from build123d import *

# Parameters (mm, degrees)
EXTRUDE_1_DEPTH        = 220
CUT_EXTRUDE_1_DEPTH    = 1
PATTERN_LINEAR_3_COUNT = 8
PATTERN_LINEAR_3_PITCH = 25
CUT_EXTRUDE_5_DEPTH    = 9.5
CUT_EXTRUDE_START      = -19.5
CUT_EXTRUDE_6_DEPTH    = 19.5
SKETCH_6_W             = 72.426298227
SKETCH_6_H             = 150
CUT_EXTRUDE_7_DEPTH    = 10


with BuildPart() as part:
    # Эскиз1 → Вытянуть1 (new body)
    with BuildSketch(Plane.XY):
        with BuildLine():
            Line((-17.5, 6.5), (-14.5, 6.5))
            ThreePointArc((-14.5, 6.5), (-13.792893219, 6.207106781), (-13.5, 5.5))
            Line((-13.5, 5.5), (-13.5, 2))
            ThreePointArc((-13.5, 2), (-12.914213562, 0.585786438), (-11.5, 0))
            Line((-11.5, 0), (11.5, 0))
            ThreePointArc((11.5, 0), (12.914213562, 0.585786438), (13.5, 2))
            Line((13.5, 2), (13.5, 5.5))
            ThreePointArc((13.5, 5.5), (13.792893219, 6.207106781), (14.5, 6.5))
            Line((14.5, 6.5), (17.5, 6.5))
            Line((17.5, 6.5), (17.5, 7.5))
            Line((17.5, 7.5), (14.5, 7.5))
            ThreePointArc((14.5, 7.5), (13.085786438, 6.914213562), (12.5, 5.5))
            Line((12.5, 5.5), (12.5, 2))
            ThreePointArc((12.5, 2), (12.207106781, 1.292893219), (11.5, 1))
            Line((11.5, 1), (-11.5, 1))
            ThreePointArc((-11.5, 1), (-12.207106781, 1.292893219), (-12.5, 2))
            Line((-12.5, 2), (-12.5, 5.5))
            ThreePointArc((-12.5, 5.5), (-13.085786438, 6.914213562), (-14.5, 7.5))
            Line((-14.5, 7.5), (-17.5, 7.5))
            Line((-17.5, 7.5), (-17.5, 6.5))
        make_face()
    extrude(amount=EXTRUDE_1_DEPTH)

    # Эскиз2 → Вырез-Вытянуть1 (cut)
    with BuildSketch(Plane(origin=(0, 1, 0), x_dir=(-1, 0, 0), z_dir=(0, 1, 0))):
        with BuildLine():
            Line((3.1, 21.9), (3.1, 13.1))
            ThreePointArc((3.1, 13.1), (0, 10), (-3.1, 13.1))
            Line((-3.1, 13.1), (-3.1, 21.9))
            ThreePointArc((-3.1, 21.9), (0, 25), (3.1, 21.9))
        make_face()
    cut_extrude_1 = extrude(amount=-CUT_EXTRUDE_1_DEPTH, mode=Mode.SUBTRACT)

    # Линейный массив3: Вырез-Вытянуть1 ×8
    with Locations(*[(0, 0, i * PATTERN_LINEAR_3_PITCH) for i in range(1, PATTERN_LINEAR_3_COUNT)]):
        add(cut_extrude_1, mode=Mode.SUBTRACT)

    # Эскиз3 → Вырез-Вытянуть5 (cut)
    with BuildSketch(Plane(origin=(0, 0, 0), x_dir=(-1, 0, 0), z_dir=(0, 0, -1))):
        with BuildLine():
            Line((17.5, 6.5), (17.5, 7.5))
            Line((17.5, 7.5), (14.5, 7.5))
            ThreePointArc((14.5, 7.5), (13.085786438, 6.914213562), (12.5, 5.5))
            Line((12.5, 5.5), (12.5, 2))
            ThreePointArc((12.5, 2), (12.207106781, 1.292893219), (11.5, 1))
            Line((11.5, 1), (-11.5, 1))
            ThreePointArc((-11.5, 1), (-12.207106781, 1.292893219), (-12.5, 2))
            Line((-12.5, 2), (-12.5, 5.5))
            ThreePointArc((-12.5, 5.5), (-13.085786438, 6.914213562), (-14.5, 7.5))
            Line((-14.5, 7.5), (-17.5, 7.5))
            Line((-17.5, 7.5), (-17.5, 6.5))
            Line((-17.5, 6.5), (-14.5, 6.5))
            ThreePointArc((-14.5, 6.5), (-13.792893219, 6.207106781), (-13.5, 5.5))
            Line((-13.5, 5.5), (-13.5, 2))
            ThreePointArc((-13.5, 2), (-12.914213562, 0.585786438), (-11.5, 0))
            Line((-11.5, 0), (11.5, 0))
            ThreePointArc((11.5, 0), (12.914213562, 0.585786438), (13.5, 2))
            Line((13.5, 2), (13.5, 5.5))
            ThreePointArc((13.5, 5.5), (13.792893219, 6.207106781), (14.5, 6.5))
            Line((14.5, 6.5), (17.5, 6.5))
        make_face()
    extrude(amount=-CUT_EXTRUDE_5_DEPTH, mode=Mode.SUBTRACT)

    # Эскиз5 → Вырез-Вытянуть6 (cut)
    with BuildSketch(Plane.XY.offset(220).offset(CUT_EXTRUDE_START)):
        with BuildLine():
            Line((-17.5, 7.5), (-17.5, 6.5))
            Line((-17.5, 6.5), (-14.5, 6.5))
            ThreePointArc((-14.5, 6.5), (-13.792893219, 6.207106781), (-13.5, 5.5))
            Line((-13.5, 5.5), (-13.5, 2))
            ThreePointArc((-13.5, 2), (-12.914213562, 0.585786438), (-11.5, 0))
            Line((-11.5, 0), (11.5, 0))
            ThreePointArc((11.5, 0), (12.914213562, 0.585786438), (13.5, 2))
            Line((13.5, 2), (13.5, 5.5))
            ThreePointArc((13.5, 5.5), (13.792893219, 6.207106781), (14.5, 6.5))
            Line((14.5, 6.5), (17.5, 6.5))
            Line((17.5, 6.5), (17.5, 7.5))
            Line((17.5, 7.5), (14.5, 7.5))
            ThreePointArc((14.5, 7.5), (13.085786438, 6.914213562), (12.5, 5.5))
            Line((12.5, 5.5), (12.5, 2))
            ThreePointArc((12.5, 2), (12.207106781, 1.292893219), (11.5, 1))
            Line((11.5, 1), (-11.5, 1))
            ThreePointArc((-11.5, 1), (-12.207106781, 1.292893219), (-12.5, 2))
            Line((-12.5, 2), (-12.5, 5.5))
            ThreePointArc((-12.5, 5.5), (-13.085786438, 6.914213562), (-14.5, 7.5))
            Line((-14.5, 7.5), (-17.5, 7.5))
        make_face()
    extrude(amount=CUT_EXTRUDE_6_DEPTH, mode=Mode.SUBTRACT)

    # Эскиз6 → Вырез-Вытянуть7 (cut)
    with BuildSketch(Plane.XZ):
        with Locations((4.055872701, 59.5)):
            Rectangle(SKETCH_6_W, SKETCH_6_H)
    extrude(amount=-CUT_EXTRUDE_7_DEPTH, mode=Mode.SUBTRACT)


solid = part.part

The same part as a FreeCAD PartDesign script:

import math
import FreeCAD as App
import Part
import Sketcher

V = App.Vector

doc = App.newDocument("Part")
params = doc.addObject("Spreadsheet::Sheet", "Params")
for row, (alias, value) in enumerate([
    ("sketch1_radius", "1 mm"),
    ("sketch1_radius2", "2 mm"),
    ("sketch1_width", "3 mm"),
    ("sketch1_width2", "23 mm"),
    ("sketch1_height", "3.5 mm"),
    ("pad1_length", "220 mm"),
    ("sketch2_radius", "3.1 mm"),
    ("sketch2_height", "8.8 mm"),
    ("pocket1_length", "1 mm"),
    ("linearpattern_pitch", "25 mm"),
    ("sketch3_radius", "2 mm"),
    ("sketch3_radius2", "1 mm"),
    ("sketch3_width", "3 mm"),
    ("sketch3_width2", "23 mm"),
    ("sketch3_height", "3.5 mm"),
    ("pocket2_length", "9.5 mm"),
    ("sketch4_radius", "1 mm"),
    ("sketch4_radius2", "2 mm"),
    ("sketch4_width", "3 mm"),
    ("sketch4_width2", "23 mm"),
    ("sketch4_height", "3.5 mm"),
    ("pocket3_length", "19.5 mm"),
    ("sketch5_height", "150 mm"),
    ("pocket4_length", "10 mm"),
], start=1):
    params.set(f"A{row}", alias)
    params.set(f"B{row}", "=" + value)
    params.setAlias(f"B{row}", alias)

body = doc.addObject("PartDesign::Body", "Body")

sketch1 = doc.addObject("Sketcher::SketchObject", "Sketch")
body.addObject(sketch1)
sketch1.AttachmentSupport = (doc.XY_Plane, [""])
sketch1.MapMode = "FlatFace"
sketch1.addGeometry(Part.LineSegment(V(-17.5, 6.5, 0), V(-14.5, 6.5, 0)), False)
sketch1.addGeometry(Part.ArcOfCircle(Part.Circle(V(-14.5, 5.5, 0), V(0, 0, 1), 1), math.radians(0), math.radians(90)), False)
sketch1.addGeometry(Part.LineSegment(V(-13.5, 5.5, 0), V(-13.5, 2, 0)), False)
sketch1.addGeometry(Part.ArcOfCircle(Part.Circle(V(-11.5, 2, 0), V(0, 0, 1), 2), math.radians(-180), math.radians(-90)), False)
sketch1.addGeometry(Part.LineSegment(V(-11.5, 0, 0), V(11.5, 0, 0)), False)
sketch1.addGeometry(Part.ArcOfCircle(Part.Circle(V(11.5, 2, 0), V(0, 0, 1), 2), math.radians(-90), math.radians(0)), False)
sketch1.addGeometry(Part.LineSegment(V(13.5, 2, 0), V(13.5, 5.5, 0)), False)
sketch1.addGeometry(Part.ArcOfCircle(Part.Circle(V(14.5, 5.5, 0), V(0, 0, 1), 1), math.radians(90), math.radians(180)), False)
sketch1.addGeometry(Part.LineSegment(V(14.5, 6.5, 0), V(17.5, 6.5, 0)), False)
sketch1.addGeometry(Part.LineSegment(V(17.5, 6.5, 0), V(17.5, 7.5, 0)), False)
sketch1.addGeometry(Part.LineSegment(V(17.5, 7.5, 0), V(14.5, 7.5, 0)), False)
sketch1.addGeometry(Part.ArcOfCircle(Part.Circle(V(14.5, 5.5, 0), V(0, 0, 1), 2), math.radians(90), math.radians(180)), False)
sketch1.addGeometry(Part.LineSegment(V(12.5, 5.5, 0), V(12.5, 2, 0)), False)
sketch1.addGeometry(Part.ArcOfCircle(Part.Circle(V(11.5, 2, 0), V(0, 0, 1), 1), math.radians(-90), math.radians(0)), False)
sketch1.addGeometry(Part.LineSegment(V(11.5, 1, 0), V(-11.5, 1, 0)), False)
sketch1.addGeometry(Part.ArcOfCircle(Part.Circle(V(-11.5, 2, 0), V(0, 0, 1), 1), math.radians(-180), math.radians(-90)), False)
sketch1.addGeometry(Part.LineSegment(V(-12.5, 2, 0), V(-12.5, 5.5, 0)), False)
sketch1.addGeometry(Part.ArcOfCircle(Part.Circle(V(-14.5, 5.5, 0), V(0, 0, 1), 2), math.radians(0), math.radians(90)), False)
sketch1.addGeometry(Part.LineSegment(V(-14.5, 7.5, 0), V(-17.5, 7.5, 0)), False)
sketch1.addGeometry(Part.LineSegment(V(-17.5, 7.5, 0), V(-17.5, 6.5, 0)), False)
sketch1.addConstraint(Sketcher.Constraint("Tangent", 0, 2, 1, 2))
sketch1.addConstraint(Sketcher.Constraint("Tangent", 1, 1, 2, 1))
sketch1.addConstraint(Sketcher.Constraint("Tangent", 2, 2, 3, 1))
sketch1.addConstraint(Sketcher.Constraint("Tangent", 3, 2, 4, 1))
sketch1.addConstraint(Sketcher.Constraint("Tangent", 4, 2, 5, 1))
sketch1.addConstraint(Sketcher.Constraint("Tangent", 5, 2, 6, 1))
sketch1.addConstraint(Sketcher.Constraint("Tangent", 6, 2, 7, 2))
sketch1.addConstraint(Sketcher.Constraint("Tangent", 7, 1, 8, 1))
sketch1.addConstraint(Sketcher.Constraint("Coincident", 8, 2, 9, 1))
sketch1.addConstraint(Sketcher.Constraint("Coincident", 9, 2, 10, 1))
sketch1.addConstraint(Sketcher.Constraint("Tangent", 10, 2, 11, 1))
sketch1.addConstraint(Sketcher.Constraint("Tangent", 11, 2, 12, 1))
sketch1.addConstraint(Sketcher.Constraint("Tangent", 12, 2, 13, 2))
sketch1.addConstraint(Sketcher.Constraint("Tangent", 13, 1, 14, 1))
sketch1.addConstraint(Sketcher.Constraint("Tangent", 14, 2, 15, 2))
sketch1.addConstraint(Sketcher.Constraint("Tangent", 15, 1, 16, 1))
sketch1.addConstraint(Sketcher.Constraint("Tangent", 16, 2, 17, 1))
sketch1.addConstraint(Sketcher.Constraint("Tangent", 17, 2, 18, 1))
sketch1.addConstraint(Sketcher.Constraint("Coincident", 18, 2, 19, 1))
sketch1.addConstraint(Sketcher.Constraint("Coincident", 19, 2, 0, 1))
sketch1.addConstraint(Sketcher.Constraint("Horizontal", 0))
sketch1.addConstraint(Sketcher.Constraint("Vertical", 2))
sketch1.addConstraint(Sketcher.Constraint("Horizontal", 4))
sketch1.addConstraint(Sketcher.Constraint("Vertical", 6))
sketch1.addConstraint(Sketcher.Constraint("Horizontal", 8))
sketch1.addConstraint(Sketcher.Constraint("Vertical", 9))
sketch1.addConstraint(Sketcher.Constraint("Horizontal", 10))
sketch1.addConstraint(Sketcher.Constraint("Vertical", 12))
sketch1.addConstraint(Sketcher.Constraint("Horizontal", 14))
sketch1.addConstraint(Sketcher.Constraint("Vertical", 16))
sketch1.addConstraint(Sketcher.Constraint("Horizontal", 18))
sketch1.addConstraint(Sketcher.Constraint("Vertical", 19))
sketch1.addConstraint(Sketcher.Constraint("Coincident", 11, 3, 7, 3))
sketch1.addConstraint(Sketcher.Constraint("Coincident", 13, 3, 5, 3))
sketch1.addConstraint(Sketcher.Constraint("Coincident", 15, 3, 3, 3))
sketch1.addConstraint(Sketcher.Constraint("Coincident", 17, 3, 1, 3))
sketch1.addConstraint(Sketcher.Constraint("Equal", 3, 5))
sketch1.addConstraint(Sketcher.Constraint("Equal", 1, 7))
sketch1.addConstraint(Sketcher.Constraint("Equal", 5, 11))
sketch1.addConstraint(Sketcher.Constraint("Symmetric", 3, 2, 4, 2, -1, 1))
sketch1.addConstraint(Sketcher.Constraint("Symmetric", 9, 2, 18, 2, -2))
sketch1.addConstraint(Sketcher.Constraint("Radius", 1, 1.0))
sketch1.addConstraint(Sketcher.Constraint("Radius", 3, 2.0))
sketch1.addConstraint(Sketcher.Constraint("DistanceX", 0, 1, 0, 2, 3.0))
sketch1.addConstraint(Sketcher.Constraint("DistanceX", 4, 1, 4, 2, 23.0))
sketch1.addConstraint(Sketcher.Constraint("DistanceY", 2, 2, 2, 1, 3.5))
sketch1.setExpression("Constraints[41]", "Params.sketch1_radius")
sketch1.setExpression("Constraints[42]", "Params.sketch1_radius2")
sketch1.setExpression("Constraints[43]", "Params.sketch1_width")
sketch1.setExpression("Constraints[44]", "Params.sketch1_width2")
sketch1.setExpression("Constraints[45]", "Params.sketch1_height")
pad1 = doc.addObject("PartDesign::Pad", "Pad")
body.addObject(pad1)
pad1.Profile = sketch1
pad1.setExpression("Length", "Params.pad1_length")

sketch2 = doc.addObject("Sketcher::SketchObject", "Sketch001")
body.addObject(sketch2)
sketch2.AttachmentSupport = (doc.XZ_Plane, [""])
sketch2.MapMode = "FlatFace"
sketch2.AttachmentOffset = App.Placement(V(0, 0, -1), App.Rotation())
sketch2.addGeometry(Part.LineSegment(V(-3.1, 13.1, 0), V(-3.1, 21.9, 0)), False)
sketch2.addGeometry(Part.ArcOfCircle(Part.Circle(V(0, 21.9, 0), V(0, 0, 1), 3.1), math.radians(0), math.radians(180)), False)
sketch2.addGeometry(Part.LineSegment(V(3.1, 21.9, 0), V(3.1, 13.1, 0)), False)
sketch2.addGeometry(Part.ArcOfCircle(Part.Circle(V(0, 13.1, 0), V(0, 0, 1), 3.1), math.radians(180), math.radians(360)), False)
sketch2.addConstraint(Sketcher.Constraint("Tangent", 0, 2, 1, 2))
sketch2.addConstraint(Sketcher.Constraint("Tangent", 1, 1, 2, 1))
sketch2.addConstraint(Sketcher.Constraint("Tangent", 2, 2, 3, 2))
sketch2.addConstraint(Sketcher.Constraint("Tangent", 3, 1, 0, 1))
sketch2.addConstraint(Sketcher.Constraint("Vertical", 0))
sketch2.addConstraint(Sketcher.Constraint("Vertical", 2))
sketch2.addConstraint(Sketcher.Constraint("PointOnObject", 1, 3, -2))
sketch2.addConstraint(Sketcher.Constraint("Radius", 1, 3.1))
sketch2.addConstraint(Sketcher.Constraint("DistanceY", 0, 1, 0, 2, 8.8))
sketch2.addConstraint(Sketcher.Constraint("DistanceY", -1, 1, 1, 3, 21.9))
sketch2.setExpression("Constraints[7]", "Params.sketch2_radius")
sketch2.setExpression("Constraints[8]", "Params.sketch2_height")
pocket1 = doc.addObject("PartDesign::Pocket", "Pocket")
body.addObject(pocket1)
pocket1.Profile = sketch2
pocket1.setExpression("Length", "Params.pocket1_length")
pocket1.Reversed = True
doc.recompute()

linearpattern = doc.addObject("PartDesign::LinearPattern", "LinearPattern")
body.addObject(linearpattern)
linearpattern.Originals = [pocket1]
linearpattern.Direction = (doc.Z_Axis, [""])
linearpattern.Mode = "offset"
linearpattern.setExpression("Offset", "Params.linearpattern_pitch")
linearpattern.Occurrences = 8
body.Tip = linearpattern

sketch3 = doc.addObject("Sketcher::SketchObject", "Sketch002")
body.addObject(sketch3)
sketch3.AttachmentSupport = (doc.XY_Plane, [""])
sketch3.MapMode = "FlatFace"
sketch3.addGeometry(Part.LineSegment(V(-17.5, 6.5, 0), V(-17.5, 7.5, 0)), False)
sketch3.addGeometry(Part.LineSegment(V(-17.5, 7.5, 0), V(-14.5, 7.5, 0)), False)
sketch3.addGeometry(Part.ArcOfCircle(Part.Circle(V(-14.5, 5.5, 0), V(0, 0, 1), 2), math.radians(0), math.radians(90)), False)
sketch3.addGeometry(Part.LineSegment(V(-12.5, 5.5, 0), V(-12.5, 2, 0)), False)
sketch3.addGeometry(Part.ArcOfCircle(Part.Circle(V(-11.5, 2, 0), V(0, 0, 1), 1), math.radians(-180), math.radians(-90)), False)
sketch3.addGeometry(Part.LineSegment(V(-11.5, 1, 0), V(11.5, 1, 0)), False)
sketch3.addGeometry(Part.ArcOfCircle(Part.Circle(V(11.5, 2, 0), V(0, 0, 1), 1), math.radians(-90), math.radians(0)), False)
sketch3.addGeometry(Part.LineSegment(V(12.5, 2, 0), V(12.5, 5.5, 0)), False)
sketch3.addGeometry(Part.ArcOfCircle(Part.Circle(V(14.5, 5.5, 0), V(0, 0, 1), 2), math.radians(90), math.radians(180)), False)
sketch3.addGeometry(Part.LineSegment(V(14.5, 7.5, 0), V(17.5, 7.5, 0)), False)
sketch3.addGeometry(Part.LineSegment(V(17.5, 7.5, 0), V(17.5, 6.5, 0)), False)
sketch3.addGeometry(Part.LineSegment(V(17.5, 6.5, 0), V(14.5, 6.5, 0)), False)
sketch3.addGeometry(Part.ArcOfCircle(Part.Circle(V(14.5, 5.5, 0), V(0, 0, 1), 1), math.radians(90), math.radians(180)), False)
sketch3.addGeometry(Part.LineSegment(V(13.5, 5.5, 0), V(13.5, 2, 0)), False)
sketch3.addGeometry(Part.ArcOfCircle(Part.Circle(V(11.5, 2, 0), V(0, 0, 1), 2), math.radians(-90), math.radians(0)), False)
sketch3.addGeometry(Part.LineSegment(V(11.5, 0, 0), V(-11.5, 0, 0)), False)
sketch3.addGeometry(Part.ArcOfCircle(Part.Circle(V(-11.5, 2, 0), V(0, 0, 1), 2), math.radians(-180), math.radians(-90)), False)
sketch3.addGeometry(Part.LineSegment(V(-13.5, 2, 0), V(-13.5, 5.5, 0)), False)
sketch3.addGeometry(Part.ArcOfCircle(Part.Circle(V(-14.5, 5.5, 0), V(0, 0, 1), 1), math.radians(0), math.radians(90)), False)
sketch3.addGeometry(Part.LineSegment(V(-14.5, 6.5, 0), V(-17.5, 6.5, 0)), False)
sketch3.addConstraint(Sketcher.Constraint("Coincident", 0, 2, 1, 1))
sketch3.addConstraint(Sketcher.Constraint("Tangent", 1, 2, 2, 2))
sketch3.addConstraint(Sketcher.Constraint("Tangent", 2, 1, 3, 1))
sketch3.addConstraint(Sketcher.Constraint("Tangent", 3, 2, 4, 1))
sketch3.addConstraint(Sketcher.Constraint("Tangent", 4, 2, 5, 1))
sketch3.addConstraint(Sketcher.Constraint("Tangent", 5, 2, 6, 1))
sketch3.addConstraint(Sketcher.Constraint("Tangent", 6, 2, 7, 1))
sketch3.addConstraint(Sketcher.Constraint("Tangent", 7, 2, 8, 2))
sketch3.addConstraint(Sketcher.Constraint("Tangent", 8, 1, 9, 1))
sketch3.addConstraint(Sketcher.Constraint("Coincident", 9, 2, 10, 1))
sketch3.addConstraint(Sketcher.Constraint("Coincident", 10, 2, 11, 1))
sketch3.addConstraint(Sketcher.Constraint("Tangent", 11, 2, 12, 1))
sketch3.addConstraint(Sketcher.Constraint("Tangent", 12, 2, 13, 1))
sketch3.addConstraint(Sketcher.Constraint("Tangent", 13, 2, 14, 2))
sketch3.addConstraint(Sketcher.Constraint("Tangent", 14, 1, 15, 1))
sketch3.addConstraint(Sketcher.Constraint("Tangent", 15, 2, 16, 2))
sketch3.addConstraint(Sketcher.Constraint("Tangent", 16, 1, 17, 1))
sketch3.addConstraint(Sketcher.Constraint("Tangent", 17, 2, 18, 1))
sketch3.addConstraint(Sketcher.Constraint("Tangent", 18, 2, 19, 1))
sketch3.addConstraint(Sketcher.Constraint("Coincident", 19, 2, 0, 1))
sketch3.addConstraint(Sketcher.Constraint("Vertical", 0))
sketch3.addConstraint(Sketcher.Constraint("Horizontal", 1))
sketch3.addConstraint(Sketcher.Constraint("Vertical", 3))
sketch3.addConstraint(Sketcher.Constraint("Horizontal", 5))
sketch3.addConstraint(Sketcher.Constraint("Vertical", 7))
sketch3.addConstraint(Sketcher.Constraint("Horizontal", 9))
sketch3.addConstraint(Sketcher.Constraint("Vertical", 10))
sketch3.addConstraint(Sketcher.Constraint("Horizontal", 11))
sketch3.addConstraint(Sketcher.Constraint("Vertical", 13))
sketch3.addConstraint(Sketcher.Constraint("Horizontal", 15))
sketch3.addConstraint(Sketcher.Constraint("Vertical", 17))
sketch3.addConstraint(Sketcher.Constraint("Horizontal", 19))
sketch3.addConstraint(Sketcher.Constraint("Coincident", 12, 3, 8, 3))
sketch3.addConstraint(Sketcher.Constraint("Coincident", 14, 3, 6, 3))
sketch3.addConstraint(Sketcher.Constraint("Coincident", 16, 3, 4, 3))
sketch3.addConstraint(Sketcher.Constraint("Coincident", 18, 3, 2, 3))
sketch3.addConstraint(Sketcher.Constraint("Equal", 4, 6))
sketch3.addConstraint(Sketcher.Constraint("Equal", 2, 8))
sketch3.addConstraint(Sketcher.Constraint("Equal", 6, 12))
sketch3.addConstraint(Sketcher.Constraint("Symmetric", 14, 1, 15, 2, -1, 1))
sketch3.addConstraint(Sketcher.Constraint("Symmetric", 0, 2, 9, 2, -2))
sketch3.addConstraint(Sketcher.Constraint("Radius", 2, 2.0))
sketch3.addConstraint(Sketcher.Constraint("Radius", 4, 1.0))
sketch3.addConstraint(Sketcher.Constraint("DistanceX", 1, 1, 1, 2, 3.0))
sketch3.addConstraint(Sketcher.Constraint("DistanceX", 5, 1, 5, 2, 23.0))
sketch3.addConstraint(Sketcher.Constraint("DistanceY", 3, 2, 3, 1, 3.5))
sketch3.setExpression("Constraints[41]", "Params.sketch3_radius")
sketch3.setExpression("Constraints[42]", "Params.sketch3_radius2")
sketch3.setExpression("Constraints[43]", "Params.sketch3_width")
sketch3.setExpression("Constraints[44]", "Params.sketch3_width2")
sketch3.setExpression("Constraints[45]", "Params.sketch3_height")
pocket2 = doc.addObject("PartDesign::Pocket", "Pocket001")
body.addObject(pocket2)
pocket2.Profile = sketch3
pocket2.setExpression("Length", "Params.pocket2_length")
pocket2.Reversed = True

sketch4 = doc.addObject("Sketcher::SketchObject", "Sketch003")
body.addObject(sketch4)
sketch4.AttachmentSupport = (doc.XY_Plane, [""])
sketch4.MapMode = "FlatFace"
sketch4.AttachmentOffset = App.Placement(V(0, 0, 200.5), App.Rotation())
sketch4.addGeometry(Part.LineSegment(V(-17.5, 7.5, 0), V(-17.5, 6.5, 0)), False)
sketch4.addGeometry(Part.LineSegment(V(-17.5, 6.5, 0), V(-14.5, 6.5, 0)), False)
sketch4.addGeometry(Part.ArcOfCircle(Part.Circle(V(-14.5, 5.5, 0), V(0, 0, 1), 1), math.radians(0), math.radians(90)), False)
sketch4.addGeometry(Part.LineSegment(V(-13.5, 5.5, 0), V(-13.5, 2, 0)), False)
sketch4.addGeometry(Part.ArcOfCircle(Part.Circle(V(-11.5, 2, 0), V(0, 0, 1), 2), math.radians(-180), math.radians(-90)), False)
sketch4.addGeometry(Part.LineSegment(V(-11.5, 0, 0), V(11.5, 0, 0)), False)
sketch4.addGeometry(Part.ArcOfCircle(Part.Circle(V(11.5, 2, 0), V(0, 0, 1), 2), math.radians(-90), math.radians(0)), False)
sketch4.addGeometry(Part.LineSegment(V(13.5, 2, 0), V(13.5, 5.5, 0)), False)
sketch4.addGeometry(Part.ArcOfCircle(Part.Circle(V(14.5, 5.5, 0), V(0, 0, 1), 1), math.radians(90), math.radians(180)), False)
sketch4.addGeometry(Part.LineSegment(V(14.5, 6.5, 0), V(17.5, 6.5, 0)), False)
sketch4.addGeometry(Part.LineSegment(V(17.5, 6.5, 0), V(17.5, 7.5, 0)), False)
sketch4.addGeometry(Part.LineSegment(V(17.5, 7.5, 0), V(14.5, 7.5, 0)), False)
sketch4.addGeometry(Part.ArcOfCircle(Part.Circle(V(14.5, 5.5, 0), V(0, 0, 1), 2), math.radians(90), math.radians(180)), False)
sketch4.addGeometry(Part.LineSegment(V(12.5, 5.5, 0), V(12.5, 2, 0)), False)
sketch4.addGeometry(Part.ArcOfCircle(Part.Circle(V(11.5, 2, 0), V(0, 0, 1), 1), math.radians(-90), math.radians(0)), False)
sketch4.addGeometry(Part.LineSegment(V(11.5, 1, 0), V(-11.5, 1, 0)), False)
sketch4.addGeometry(Part.ArcOfCircle(Part.Circle(V(-11.5, 2, 0), V(0, 0, 1), 1), math.radians(-180), math.radians(-90)), False)
sketch4.addGeometry(Part.LineSegment(V(-12.5, 2, 0), V(-12.5, 5.5, 0)), False)
sketch4.addGeometry(Part.ArcOfCircle(Part.Circle(V(-14.5, 5.5, 0), V(0, 0, 1), 2), math.radians(0), math.radians(90)), False)
sketch4.addGeometry(Part.LineSegment(V(-14.5, 7.5, 0), V(-17.5, 7.5, 0)), False)
sketch4.addConstraint(Sketcher.Constraint("Coincident", 0, 2, 1, 1))
sketch4.addConstraint(Sketcher.Constraint("Tangent", 1, 2, 2, 2))
sketch4.addConstraint(Sketcher.Constraint("Tangent", 2, 1, 3, 1))
sketch4.addConstraint(Sketcher.Constraint("Tangent", 3, 2, 4, 1))
sketch4.addConstraint(Sketcher.Constraint("Tangent", 4, 2, 5, 1))
sketch4.addConstraint(Sketcher.Constraint("Tangent", 5, 2, 6, 1))
sketch4.addConstraint(Sketcher.Constraint("Tangent", 6, 2, 7, 1))
sketch4.addConstraint(Sketcher.Constraint("Tangent", 7, 2, 8, 2))
sketch4.addConstraint(Sketcher.Constraint("Tangent", 8, 1, 9, 1))
sketch4.addConstraint(Sketcher.Constraint("Coincident", 9, 2, 10, 1))
sketch4.addConstraint(Sketcher.Constraint("Coincident", 10, 2, 11, 1))
sketch4.addConstraint(Sketcher.Constraint("Tangent", 11, 2, 12, 1))
sketch4.addConstraint(Sketcher.Constraint("Tangent", 12, 2, 13, 1))
sketch4.addConstraint(Sketcher.Constraint("Tangent", 13, 2, 14, 2))
sketch4.addConstraint(Sketcher.Constraint("Tangent", 14, 1, 15, 1))
sketch4.addConstraint(Sketcher.Constraint("Tangent", 15, 2, 16, 2))
sketch4.addConstraint(Sketcher.Constraint("Tangent", 16, 1, 17, 1))
sketch4.addConstraint(Sketcher.Constraint("Tangent", 17, 2, 18, 1))
sketch4.addConstraint(Sketcher.Constraint("Tangent", 18, 2, 19, 1))
sketch4.addConstraint(Sketcher.Constraint("Coincident", 19, 2, 0, 1))
sketch4.addConstraint(Sketcher.Constraint("Vertical", 0))
sketch4.addConstraint(Sketcher.Constraint("Horizontal", 1))
sketch4.addConstraint(Sketcher.Constraint("Vertical", 3))
sketch4.addConstraint(Sketcher.Constraint("Horizontal", 5))
sketch4.addConstraint(Sketcher.Constraint("Vertical", 7))
sketch4.addConstraint(Sketcher.Constraint("Horizontal", 9))
sketch4.addConstraint(Sketcher.Constraint("Vertical", 10))
sketch4.addConstraint(Sketcher.Constraint("Horizontal", 11))
sketch4.addConstraint(Sketcher.Constraint("Vertical", 13))
sketch4.addConstraint(Sketcher.Constraint("Horizontal", 15))
sketch4.addConstraint(Sketcher.Constraint("Vertical", 17))
sketch4.addConstraint(Sketcher.Constraint("Horizontal", 19))
sketch4.addConstraint(Sketcher.Constraint("Coincident", 12, 3, 8, 3))
sketch4.addConstraint(Sketcher.Constraint("Coincident", 14, 3, 6, 3))
sketch4.addConstraint(Sketcher.Constraint("Coincident", 16, 3, 4, 3))
sketch4.addConstraint(Sketcher.Constraint("Coincident", 18, 3, 2, 3))
sketch4.addConstraint(Sketcher.Constraint("Equal", 4, 6))
sketch4.addConstraint(Sketcher.Constraint("Equal", 2, 8))
sketch4.addConstraint(Sketcher.Constraint("Equal", 6, 12))
sketch4.addConstraint(Sketcher.Constraint("Symmetric", 4, 2, 5, 2, -1, 1))
sketch4.addConstraint(Sketcher.Constraint("Symmetric", 0, 2, 9, 2, -2))
sketch4.addConstraint(Sketcher.Constraint("Radius", 2, 1.0))
sketch4.addConstraint(Sketcher.Constraint("Radius", 4, 2.0))
sketch4.addConstraint(Sketcher.Constraint("DistanceX", 1, 1, 1, 2, 3.0))
sketch4.addConstraint(Sketcher.Constraint("DistanceX", 5, 1, 5, 2, 23.0))
sketch4.addConstraint(Sketcher.Constraint("DistanceY", 3, 2, 3, 1, 3.5))
sketch4.setExpression("Constraints[41]", "Params.sketch4_radius")
sketch4.setExpression("Constraints[42]", "Params.sketch4_radius2")
sketch4.setExpression("Constraints[43]", "Params.sketch4_width")
sketch4.setExpression("Constraints[44]", "Params.sketch4_width2")
sketch4.setExpression("Constraints[45]", "Params.sketch4_height")
pocket3 = doc.addObject("PartDesign::Pocket", "Pocket002")
body.addObject(pocket3)
pocket3.Profile = sketch4
pocket3.setExpression("Length", "Params.pocket3_length")
pocket3.Reversed = True

sketch5 = doc.addObject("Sketcher::SketchObject", "Sketch004")
body.addObject(sketch5)
sketch5.AttachmentSupport = (doc.XZ_Plane, [""])
sketch5.MapMode = "FlatFace"
sketch5.addGeometry(Part.LineSegment(V(-32.157276, 134.5, 0), V(-32.157276, -15.5, 0)), False)
sketch5.addGeometry(Part.LineSegment(V(-32.157276, -15.5, 0), V(40.269022, -15.5, 0)), False)
sketch5.addGeometry(Part.LineSegment(V(40.269022, -15.5, 0), V(40.269022, 134.5, 0)), False)
sketch5.addGeometry(Part.LineSegment(V(40.269022, 134.5, 0), V(-32.157276, 134.5, 0)), False)
sketch5.addConstraint(Sketcher.Constraint("Coincident", 0, 2, 1, 1))
sketch5.addConstraint(Sketcher.Constraint("Coincident", 1, 2, 2, 1))
sketch5.addConstraint(Sketcher.Constraint("Coincident", 2, 2, 3, 1))
sketch5.addConstraint(Sketcher.Constraint("Coincident", 3, 2, 0, 1))
sketch5.addConstraint(Sketcher.Constraint("Vertical", 0))
sketch5.addConstraint(Sketcher.Constraint("Horizontal", 1))
sketch5.addConstraint(Sketcher.Constraint("Vertical", 2))
sketch5.addConstraint(Sketcher.Constraint("Horizontal", 3))
sketch5.addConstraint(Sketcher.Constraint("DistanceY", 0, 2, 0, 1, 150.0))
sketch5.addConstraint(Sketcher.Constraint("DistanceY", 0, 2, -1, 1, 15.5))
sketch5.addConstraint(Sketcher.Constraint("DistanceX", 1, 1, 1, 2, 72.426298))
sketch5.addConstraint(Sketcher.Constraint("DistanceX", -1, 1, 1, 2, 40.269022))
sketch5.setExpression("Constraints[8]", "Params.sketch5_height")
pocket4 = doc.addObject("PartDesign::Pocket", "Pocket003")
body.addObject(pocket4)
pocket4.Profile = sketch5
pocket4.setExpression("Length", "Params.pocket4_length")

doc.recompute()
